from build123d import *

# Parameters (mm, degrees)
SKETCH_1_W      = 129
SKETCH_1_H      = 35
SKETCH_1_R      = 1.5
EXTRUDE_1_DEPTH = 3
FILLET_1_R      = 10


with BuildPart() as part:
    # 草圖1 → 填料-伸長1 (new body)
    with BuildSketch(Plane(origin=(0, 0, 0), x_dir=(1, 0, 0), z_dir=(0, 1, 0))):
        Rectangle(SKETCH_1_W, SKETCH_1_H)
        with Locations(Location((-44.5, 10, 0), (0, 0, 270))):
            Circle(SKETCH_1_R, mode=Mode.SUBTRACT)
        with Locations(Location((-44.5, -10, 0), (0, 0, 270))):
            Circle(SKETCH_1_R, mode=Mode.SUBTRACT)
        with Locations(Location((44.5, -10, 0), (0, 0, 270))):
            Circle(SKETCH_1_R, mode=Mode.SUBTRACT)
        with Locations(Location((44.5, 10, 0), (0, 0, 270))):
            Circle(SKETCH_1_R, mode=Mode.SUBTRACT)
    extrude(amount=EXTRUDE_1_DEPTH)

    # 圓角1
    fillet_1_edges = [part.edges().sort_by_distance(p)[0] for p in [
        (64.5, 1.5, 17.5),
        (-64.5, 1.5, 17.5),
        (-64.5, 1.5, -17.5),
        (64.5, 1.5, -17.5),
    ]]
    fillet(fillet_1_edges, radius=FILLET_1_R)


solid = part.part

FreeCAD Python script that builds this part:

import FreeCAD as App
import Part
import Sketcher

V = App.Vector


def edges_at(feature, points):
    """Names of the edges that pass closest to the given points."""
    edges = feature.Shape.Edges
    near = lambda p: min(range(len(edges)), key=lambda i: edges[i].distToShape(Part.Vertex(*p))[0])
    return sorted({f"Edge{near(p) + 1}" for p in points})


def add_polygon(sketch, points):
    """Adds a closed chain of lines whose ends are joined by coincident constraints."""
    first, n = sketch.GeometryCount, len(points)
    for a, b in zip(points, points[1:] + points[:1]):
        sketch.addGeometry(Part.LineSegment(App.Vector(*a, 0), App.Vector(*b, 0)), False)
    for i in range(n):
        sketch.addConstraint(Sketcher.Constraint("Coincident", first + i, 2, first + (i + 1) % n, 1))

doc = App.newDocument("Part")
body = doc.addObject("PartDesign::Body", "Body")

# Sketch on XZ plane
sketch1 = body.newObject("Sketcher::SketchObject", "Sketch")
sketch1.AttachmentSupport = (doc.getObject("XZ_Plane"), [""])
sketch1.MapMode = "FlatFace"
add_polygon(sketch1, [(-64.5, -17.5), (-64.5, 17.5), (64.5, 17.5), (64.5, -17.5)])  # lines 0-3
sketch1.addGeometry(Part.Circle(V(-44.5, 10, 0), V(0, 0, 1), 1.5), False)  # 4
sketch1.addGeometry(Part.Circle(V(44.5, 10, 0), V(0, 0, 1), 1.5), False)  # 5
sketch1.addGeometry(Part.Circle(V(-44.5, -10, 0), V(0, 0, 1), 1.5), False)  # 6
sketch1.addGeometry(Part.Circle(V(44.5, -10, 0), V(0, 0, 1), 1.5), False)  # 7
sketch1.addConstraint(Sketcher.Constraint("Vertical", 0))
sketch1.addConstraint(Sketcher.Constraint("Horizontal", 1))
sketch1.addConstraint(Sketcher.Constraint("Vertical", 2))
sketch1.addConstraint(Sketcher.Constraint("Horizontal", 3))
sketch1.addConstraint(Sketcher.Constraint("Equal", 4, 5))
sketch1.addConstraint(Sketcher.Constraint("Equal", 5, 6))
sketch1.addConstraint(Sketcher.Constraint("Equal", 6, 7))
sketch1.addConstraint(Sketcher.Constraint("Symmetric", 5, 3, 6, 3, -1, 1))
sketch1.addConstraint(Sketcher.Constraint("Symmetric", 4, 3, 7, 3, -1, 1))
sketch1.addConstraint(Sketcher.Constraint("Symmetric", 0, 2, 2, 2, -1, 1))
sketch1.addConstraint(Sketcher.Constraint("Symmetric", 4, 3, 5, 3, -2))
sketch1.addConstraint(Sketcher.Constraint("Diameter", 4, 3.0))
sketch1.addConstraint(Sketcher.Constraint("DistanceX", 1, 1, 1, 2, 129.0))
sketch1.addConstraint(Sketcher.Constraint("DistanceY", 0, 1, 0, 2, 35.0))
sketch1.addConstraint(Sketcher.Constraint("DistanceY", -1, 1, 4, 3, 10.0))
sketch1.addConstraint(Sketcher.Constraint("DistanceX", 4, 3, 5, 3, 89.0))
pad1 = body.newObject("PartDesign::Pad", "Pad")
pad1.Profile = sketch1
pad1.Length = 3
pad1.Reversed = True
doc.recompute()

fillet = body.newObject("PartDesign::Fillet", "Fillet")
fillet.Base = (pad1, edges_at(pad1, [
    (64.5, 1.5, 17.5),
    (-64.5, 1.5, 17.5),
    (-64.5, 1.5, -17.5),
    (64.5, 1.5, -17.5),
]))
fillet.Radius = 10

doc.recompute()
